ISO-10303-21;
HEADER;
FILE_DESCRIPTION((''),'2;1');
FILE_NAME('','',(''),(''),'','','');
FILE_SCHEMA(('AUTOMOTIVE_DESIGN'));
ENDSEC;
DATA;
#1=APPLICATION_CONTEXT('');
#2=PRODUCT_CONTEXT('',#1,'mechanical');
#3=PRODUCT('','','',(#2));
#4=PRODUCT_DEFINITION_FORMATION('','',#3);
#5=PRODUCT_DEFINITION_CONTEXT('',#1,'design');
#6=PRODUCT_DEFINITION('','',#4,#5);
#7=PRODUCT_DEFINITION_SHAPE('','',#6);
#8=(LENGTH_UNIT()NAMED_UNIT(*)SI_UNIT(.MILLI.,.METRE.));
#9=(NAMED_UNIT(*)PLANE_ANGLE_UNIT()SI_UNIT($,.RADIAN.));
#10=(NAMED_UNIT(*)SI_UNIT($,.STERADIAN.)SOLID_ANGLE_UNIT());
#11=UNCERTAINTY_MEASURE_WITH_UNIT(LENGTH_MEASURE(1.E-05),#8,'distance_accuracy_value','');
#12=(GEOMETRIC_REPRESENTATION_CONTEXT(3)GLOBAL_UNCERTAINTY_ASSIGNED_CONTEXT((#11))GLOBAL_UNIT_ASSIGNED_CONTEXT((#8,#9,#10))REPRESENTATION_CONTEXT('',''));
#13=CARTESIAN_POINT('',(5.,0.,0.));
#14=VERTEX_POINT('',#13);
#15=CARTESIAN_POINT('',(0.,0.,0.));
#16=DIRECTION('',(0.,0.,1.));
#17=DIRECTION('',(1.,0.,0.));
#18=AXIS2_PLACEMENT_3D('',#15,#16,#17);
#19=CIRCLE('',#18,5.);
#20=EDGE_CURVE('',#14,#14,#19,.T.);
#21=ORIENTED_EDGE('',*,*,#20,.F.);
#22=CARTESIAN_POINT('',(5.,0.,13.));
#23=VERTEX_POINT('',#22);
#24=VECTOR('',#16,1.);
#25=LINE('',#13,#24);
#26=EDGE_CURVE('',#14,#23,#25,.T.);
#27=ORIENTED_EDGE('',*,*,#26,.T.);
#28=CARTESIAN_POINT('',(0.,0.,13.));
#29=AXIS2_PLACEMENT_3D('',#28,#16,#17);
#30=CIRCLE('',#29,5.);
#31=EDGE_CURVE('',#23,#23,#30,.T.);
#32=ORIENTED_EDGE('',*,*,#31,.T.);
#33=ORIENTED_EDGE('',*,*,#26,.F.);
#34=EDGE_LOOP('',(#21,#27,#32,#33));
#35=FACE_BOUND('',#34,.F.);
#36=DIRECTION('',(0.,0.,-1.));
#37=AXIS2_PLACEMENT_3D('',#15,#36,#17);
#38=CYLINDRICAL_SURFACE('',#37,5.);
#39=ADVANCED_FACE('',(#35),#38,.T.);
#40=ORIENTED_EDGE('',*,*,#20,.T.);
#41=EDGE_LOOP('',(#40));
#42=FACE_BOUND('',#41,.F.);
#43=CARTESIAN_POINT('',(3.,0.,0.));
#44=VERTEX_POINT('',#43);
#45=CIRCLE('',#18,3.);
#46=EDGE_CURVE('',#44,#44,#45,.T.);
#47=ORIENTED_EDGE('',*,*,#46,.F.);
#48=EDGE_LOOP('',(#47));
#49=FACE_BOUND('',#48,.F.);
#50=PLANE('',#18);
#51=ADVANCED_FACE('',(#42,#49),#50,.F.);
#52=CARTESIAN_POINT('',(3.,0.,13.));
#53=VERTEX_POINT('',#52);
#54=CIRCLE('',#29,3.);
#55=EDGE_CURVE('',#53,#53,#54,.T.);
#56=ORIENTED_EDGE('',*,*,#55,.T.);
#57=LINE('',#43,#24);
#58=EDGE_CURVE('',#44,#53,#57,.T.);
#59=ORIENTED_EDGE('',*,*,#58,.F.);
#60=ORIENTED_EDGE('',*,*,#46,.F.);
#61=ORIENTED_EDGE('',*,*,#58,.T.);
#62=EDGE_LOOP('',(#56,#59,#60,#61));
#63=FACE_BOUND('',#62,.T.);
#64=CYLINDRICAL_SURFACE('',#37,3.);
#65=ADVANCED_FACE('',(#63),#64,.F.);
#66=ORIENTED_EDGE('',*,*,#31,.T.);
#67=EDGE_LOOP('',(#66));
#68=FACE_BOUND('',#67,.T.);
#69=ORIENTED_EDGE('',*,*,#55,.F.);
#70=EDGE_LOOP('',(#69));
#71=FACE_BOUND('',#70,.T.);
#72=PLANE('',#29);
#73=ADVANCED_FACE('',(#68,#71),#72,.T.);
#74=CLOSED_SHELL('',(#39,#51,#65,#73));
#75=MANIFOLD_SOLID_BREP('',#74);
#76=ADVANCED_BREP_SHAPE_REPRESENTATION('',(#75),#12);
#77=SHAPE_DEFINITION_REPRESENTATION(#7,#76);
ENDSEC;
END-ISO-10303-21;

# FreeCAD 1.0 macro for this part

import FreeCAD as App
import Part
import Sketcher
from FreeCAD import Vector

doc = App.newDocument("Part")
body = doc.addObject("PartDesign::Body", "Body")

sketch1 = doc.addObject("Sketcher::SketchObject", "Sketch")
body.addObject(sketch1)
sketch1.AttachmentSupport = (doc.XY_Plane, [""])
sketch1.MapMode = "FlatFace"
sketch1.addGeometry([
    Part.Circle(Vector(0, 0, 0), Vector(0, 0, 1), 5),
    Part.Circle(Vector(0, 0, 0), Vector(0, 0, 1), 3),
], False)
sketch1.addConstraint([
    Sketcher.Constraint("Coincident", 0, 3, -1, 1),
    Sketcher.Constraint("Coincident", 1, 3, -1, 1),
    Sketcher.Constraint("Diameter", 0, 10.0),
    Sketcher.Constraint("Diameter", 1, 6.0),
])
pad1 = doc.addObject("PartDesign::Pad", "Pad")
body.addObject(pad1)
pad1.Profile = sketch1
pad1.Length = 13

doc.recompute()
